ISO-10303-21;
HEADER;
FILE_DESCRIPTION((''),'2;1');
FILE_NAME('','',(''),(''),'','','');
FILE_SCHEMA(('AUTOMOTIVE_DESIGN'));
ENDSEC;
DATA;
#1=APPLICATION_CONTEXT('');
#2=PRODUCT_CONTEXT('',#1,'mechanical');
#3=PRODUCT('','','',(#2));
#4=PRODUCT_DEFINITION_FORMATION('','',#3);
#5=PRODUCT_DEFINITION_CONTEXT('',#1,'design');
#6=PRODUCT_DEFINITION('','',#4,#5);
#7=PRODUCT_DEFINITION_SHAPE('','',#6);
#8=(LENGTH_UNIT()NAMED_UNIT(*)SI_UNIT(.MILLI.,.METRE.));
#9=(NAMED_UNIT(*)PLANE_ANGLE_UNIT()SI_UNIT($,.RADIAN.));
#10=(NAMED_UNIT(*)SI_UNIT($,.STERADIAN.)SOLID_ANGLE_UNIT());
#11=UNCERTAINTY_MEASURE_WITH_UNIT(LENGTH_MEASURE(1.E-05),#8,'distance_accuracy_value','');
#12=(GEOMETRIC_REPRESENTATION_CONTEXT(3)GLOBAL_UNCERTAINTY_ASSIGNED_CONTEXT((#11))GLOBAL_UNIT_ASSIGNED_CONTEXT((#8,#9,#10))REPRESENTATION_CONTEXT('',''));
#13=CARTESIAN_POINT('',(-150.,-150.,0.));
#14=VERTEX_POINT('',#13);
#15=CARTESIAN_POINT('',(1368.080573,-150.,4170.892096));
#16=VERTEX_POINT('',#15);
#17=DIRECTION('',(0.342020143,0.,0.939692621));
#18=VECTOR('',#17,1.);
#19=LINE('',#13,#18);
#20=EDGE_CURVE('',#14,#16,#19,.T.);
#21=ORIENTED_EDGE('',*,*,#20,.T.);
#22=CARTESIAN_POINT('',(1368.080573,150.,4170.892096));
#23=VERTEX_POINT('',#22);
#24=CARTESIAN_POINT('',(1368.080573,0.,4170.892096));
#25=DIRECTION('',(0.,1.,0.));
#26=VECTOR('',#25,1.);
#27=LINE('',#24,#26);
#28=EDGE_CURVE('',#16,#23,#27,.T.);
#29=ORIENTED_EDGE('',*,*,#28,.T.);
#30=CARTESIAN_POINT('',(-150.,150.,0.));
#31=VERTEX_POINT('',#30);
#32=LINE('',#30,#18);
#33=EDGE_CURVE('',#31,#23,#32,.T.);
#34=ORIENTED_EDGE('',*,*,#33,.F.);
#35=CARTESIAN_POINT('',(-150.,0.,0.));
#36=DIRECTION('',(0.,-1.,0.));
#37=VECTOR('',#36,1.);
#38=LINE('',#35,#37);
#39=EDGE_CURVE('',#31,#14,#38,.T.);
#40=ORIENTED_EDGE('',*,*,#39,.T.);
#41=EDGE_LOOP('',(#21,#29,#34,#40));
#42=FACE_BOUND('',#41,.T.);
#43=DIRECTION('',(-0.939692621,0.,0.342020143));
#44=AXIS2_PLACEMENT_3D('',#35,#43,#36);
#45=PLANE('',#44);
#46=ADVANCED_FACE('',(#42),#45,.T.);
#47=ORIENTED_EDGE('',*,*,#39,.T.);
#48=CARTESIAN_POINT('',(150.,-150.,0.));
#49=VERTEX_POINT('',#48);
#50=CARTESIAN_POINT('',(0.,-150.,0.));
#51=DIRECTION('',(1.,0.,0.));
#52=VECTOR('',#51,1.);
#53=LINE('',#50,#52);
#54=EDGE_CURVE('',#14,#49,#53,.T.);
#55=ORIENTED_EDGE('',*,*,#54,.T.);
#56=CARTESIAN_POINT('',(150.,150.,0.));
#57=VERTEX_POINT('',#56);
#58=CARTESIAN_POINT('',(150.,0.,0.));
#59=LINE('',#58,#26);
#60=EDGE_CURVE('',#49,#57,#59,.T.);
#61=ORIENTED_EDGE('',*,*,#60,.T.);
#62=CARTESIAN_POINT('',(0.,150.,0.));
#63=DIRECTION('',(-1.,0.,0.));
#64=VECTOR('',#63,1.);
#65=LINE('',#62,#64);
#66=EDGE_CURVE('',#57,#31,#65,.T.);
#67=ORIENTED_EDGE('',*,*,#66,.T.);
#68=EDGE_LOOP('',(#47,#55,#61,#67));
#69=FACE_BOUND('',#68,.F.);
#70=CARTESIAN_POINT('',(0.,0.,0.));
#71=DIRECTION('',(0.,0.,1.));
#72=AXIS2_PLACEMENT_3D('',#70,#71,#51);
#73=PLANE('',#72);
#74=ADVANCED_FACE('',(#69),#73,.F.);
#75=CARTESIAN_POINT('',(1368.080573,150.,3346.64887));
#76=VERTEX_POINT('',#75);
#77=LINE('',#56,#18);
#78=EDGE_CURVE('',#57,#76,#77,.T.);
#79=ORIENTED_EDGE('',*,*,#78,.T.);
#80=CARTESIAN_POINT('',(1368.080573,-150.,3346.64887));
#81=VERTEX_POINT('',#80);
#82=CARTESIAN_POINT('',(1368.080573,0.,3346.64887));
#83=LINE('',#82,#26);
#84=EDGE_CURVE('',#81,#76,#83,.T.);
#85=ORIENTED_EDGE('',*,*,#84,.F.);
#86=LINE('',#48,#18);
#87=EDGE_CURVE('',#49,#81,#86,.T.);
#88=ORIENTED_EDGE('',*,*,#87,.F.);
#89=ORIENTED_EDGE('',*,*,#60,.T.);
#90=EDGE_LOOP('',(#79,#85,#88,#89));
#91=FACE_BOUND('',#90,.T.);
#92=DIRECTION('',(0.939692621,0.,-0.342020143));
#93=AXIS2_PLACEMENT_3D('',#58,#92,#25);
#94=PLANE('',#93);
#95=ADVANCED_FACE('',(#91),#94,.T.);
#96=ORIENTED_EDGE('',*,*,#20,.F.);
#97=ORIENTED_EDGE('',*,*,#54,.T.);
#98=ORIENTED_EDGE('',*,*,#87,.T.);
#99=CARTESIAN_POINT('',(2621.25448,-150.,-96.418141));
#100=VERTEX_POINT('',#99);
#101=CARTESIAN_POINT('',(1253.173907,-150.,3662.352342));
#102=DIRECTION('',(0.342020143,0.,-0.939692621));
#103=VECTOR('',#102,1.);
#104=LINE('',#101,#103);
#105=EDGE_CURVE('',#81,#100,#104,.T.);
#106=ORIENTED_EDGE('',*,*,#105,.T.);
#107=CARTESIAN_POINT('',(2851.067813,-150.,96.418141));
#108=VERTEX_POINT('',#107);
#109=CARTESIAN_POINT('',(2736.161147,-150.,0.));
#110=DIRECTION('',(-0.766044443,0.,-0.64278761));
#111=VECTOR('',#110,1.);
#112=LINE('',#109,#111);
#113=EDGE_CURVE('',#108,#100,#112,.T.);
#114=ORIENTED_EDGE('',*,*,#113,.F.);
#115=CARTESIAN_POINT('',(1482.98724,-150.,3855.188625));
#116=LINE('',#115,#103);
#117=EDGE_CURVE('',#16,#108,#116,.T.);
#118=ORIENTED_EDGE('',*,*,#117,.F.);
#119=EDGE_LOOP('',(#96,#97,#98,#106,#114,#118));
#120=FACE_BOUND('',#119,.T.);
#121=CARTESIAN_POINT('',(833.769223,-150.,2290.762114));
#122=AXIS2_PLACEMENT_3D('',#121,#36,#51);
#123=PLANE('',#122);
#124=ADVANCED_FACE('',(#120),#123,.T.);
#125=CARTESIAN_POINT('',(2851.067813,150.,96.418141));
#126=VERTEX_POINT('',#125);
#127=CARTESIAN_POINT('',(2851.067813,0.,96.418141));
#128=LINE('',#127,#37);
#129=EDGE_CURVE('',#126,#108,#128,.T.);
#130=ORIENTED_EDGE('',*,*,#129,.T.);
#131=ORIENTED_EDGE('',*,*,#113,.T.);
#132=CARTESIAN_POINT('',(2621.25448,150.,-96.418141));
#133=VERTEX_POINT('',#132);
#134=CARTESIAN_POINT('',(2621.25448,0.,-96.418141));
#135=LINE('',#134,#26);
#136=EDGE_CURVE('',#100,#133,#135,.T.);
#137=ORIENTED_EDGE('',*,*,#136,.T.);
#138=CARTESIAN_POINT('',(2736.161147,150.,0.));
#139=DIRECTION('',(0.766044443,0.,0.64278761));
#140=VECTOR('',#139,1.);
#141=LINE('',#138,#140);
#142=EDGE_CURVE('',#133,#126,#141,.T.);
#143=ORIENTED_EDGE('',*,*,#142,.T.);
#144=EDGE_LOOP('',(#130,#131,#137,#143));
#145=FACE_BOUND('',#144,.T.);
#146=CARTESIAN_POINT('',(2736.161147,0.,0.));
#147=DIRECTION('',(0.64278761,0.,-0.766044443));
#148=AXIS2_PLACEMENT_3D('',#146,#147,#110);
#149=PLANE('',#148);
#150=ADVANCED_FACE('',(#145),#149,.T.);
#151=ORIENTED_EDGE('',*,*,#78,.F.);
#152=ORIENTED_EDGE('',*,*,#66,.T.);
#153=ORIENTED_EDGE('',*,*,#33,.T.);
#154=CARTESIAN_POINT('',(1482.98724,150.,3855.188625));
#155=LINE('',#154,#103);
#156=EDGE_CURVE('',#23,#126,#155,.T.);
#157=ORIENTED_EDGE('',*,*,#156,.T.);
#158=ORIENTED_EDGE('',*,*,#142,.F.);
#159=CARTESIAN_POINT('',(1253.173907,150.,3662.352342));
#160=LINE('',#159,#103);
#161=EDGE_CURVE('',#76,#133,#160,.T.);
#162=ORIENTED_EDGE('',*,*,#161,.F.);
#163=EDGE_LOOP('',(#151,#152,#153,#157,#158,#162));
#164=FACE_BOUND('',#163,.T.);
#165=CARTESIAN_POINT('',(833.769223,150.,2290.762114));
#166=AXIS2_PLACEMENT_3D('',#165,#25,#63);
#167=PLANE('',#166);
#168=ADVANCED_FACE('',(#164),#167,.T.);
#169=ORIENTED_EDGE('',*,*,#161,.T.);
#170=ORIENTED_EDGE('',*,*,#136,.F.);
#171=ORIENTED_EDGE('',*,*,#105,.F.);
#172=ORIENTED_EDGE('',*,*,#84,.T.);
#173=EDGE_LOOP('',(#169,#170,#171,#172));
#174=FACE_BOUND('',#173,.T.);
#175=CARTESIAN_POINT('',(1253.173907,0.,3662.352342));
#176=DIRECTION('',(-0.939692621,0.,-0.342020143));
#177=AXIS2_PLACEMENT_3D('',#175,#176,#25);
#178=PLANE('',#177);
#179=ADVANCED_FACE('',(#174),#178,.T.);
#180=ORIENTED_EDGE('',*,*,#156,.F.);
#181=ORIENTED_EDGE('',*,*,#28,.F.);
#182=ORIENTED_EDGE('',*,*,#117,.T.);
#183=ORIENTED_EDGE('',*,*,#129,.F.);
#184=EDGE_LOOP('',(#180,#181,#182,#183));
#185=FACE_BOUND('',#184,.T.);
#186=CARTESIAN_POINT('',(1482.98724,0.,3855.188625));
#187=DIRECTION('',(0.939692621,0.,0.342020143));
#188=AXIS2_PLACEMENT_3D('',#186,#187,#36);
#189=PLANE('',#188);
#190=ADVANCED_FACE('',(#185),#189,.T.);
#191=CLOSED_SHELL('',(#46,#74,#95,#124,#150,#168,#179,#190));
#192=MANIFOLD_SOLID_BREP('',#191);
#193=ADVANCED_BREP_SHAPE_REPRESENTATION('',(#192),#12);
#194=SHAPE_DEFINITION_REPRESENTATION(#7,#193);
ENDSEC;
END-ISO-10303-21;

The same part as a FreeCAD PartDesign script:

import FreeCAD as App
import Part
import Sketcher

V = App.Vector
Q = App.Units.Quantity

doc = App.newDocument("Part")
body = doc.addObject("PartDesign::Body", "Body")

sketch1 = doc.addObject("Sketcher::SketchObject", "Sketch")
body.addObject(sketch1)
sketch1.AttachmentSupport = (doc.XY_Plane, [""])
sketch1.MapMode = "FlatFace"
sketch1.addGeometry(Part.LineSegment(V(-150, 150, 0), V(-150, -150, 0)), False)
sketch1.addGeometry(Part.LineSegment(V(-150, -150, 0), V(150, -150, 0)), False)
sketch1.addGeometry(Part.LineSegment(V(150, -150, 0), V(150, 150, 0)), False)
sketch1.addGeometry(Part.LineSegment(V(150, 150, 0), V(-150, 150, 0)), False)
sketch1.addConstraint(Sketcher.Constraint("Coincident", 0, 2, 1, 1))
sketch1.addConstraint(Sketcher.Constraint("Coincident", 1, 2, 2, 1))
sketch1.addConstraint(Sketcher.Constraint("Coincident", 2, 2, 3, 1))
sketch1.addConstraint(Sketcher.Constraint("Coincident", 3, 2, 0, 1))
sketch1.addConstraint(Sketcher.Constraint("Vertical", 0))
sketch1.addConstraint(Sketcher.Constraint("Horizontal", 1))
sketch1.addConstraint(Sketcher.Constraint("Vertical", 2))
sketch1.addConstraint(Sketcher.Constraint("Horizontal", 3))
sketch1.addConstraint(Sketcher.Constraint("Symmetric", 0, 2, 2, 2, -1, 1))
sketch1.addConstraint(Sketcher.Constraint("Equal", 3, 0))
sketch1.addConstraint(Sketcher.Constraint("DistanceX", 1, 1, 1, 2, 300.0))

sketch2 = doc.addObject("Sketcher::SketchObject", "Sketch001")
body.addObject(sketch2)
sketch2.AttachmentSupport = (doc.XZ_Plane, [""])
sketch2.MapMode = "FlatFace"
sketch2.addGeometry(Part.LineSegment(V(0, 0, 0), V(1368.080573, 3758.770483, 0)), False)
sketch2.addGeometry(Part.LineSegment(V(1368.080573, 3758.770483, 0), V(2736.161147, 0, 0)), False)
sketch2.addConstraint(Sketcher.Constraint("Coincident", 0, 2, 1, 1))
sketch2.addConstraint(Sketcher.Constraint("Coincident", 0, 1, -1, 1))
sketch2.addConstraint(Sketcher.Constraint("PointOnObject", 1, 2, -1))
sketch2.addConstraint(Sketcher.Constraint("Equal", 0, 1))
sketch2.addConstraint(Sketcher.Constraint("Angle", 0, Q("70 deg")))
sketch2.addConstraint(Sketcher.Constraint("Distance", 0, 4000.0))
doc.recompute()

additivepipe = doc.addObject("PartDesign::AdditivePipe", "AdditivePipe")
body.addObject(additivepipe)
additivepipe.Profile = sketch1
additivepipe.Spine = (sketch2, ["Edge1", "Edge2"])
additivepipe.Transition = "Right corner"

doc.recompute()
